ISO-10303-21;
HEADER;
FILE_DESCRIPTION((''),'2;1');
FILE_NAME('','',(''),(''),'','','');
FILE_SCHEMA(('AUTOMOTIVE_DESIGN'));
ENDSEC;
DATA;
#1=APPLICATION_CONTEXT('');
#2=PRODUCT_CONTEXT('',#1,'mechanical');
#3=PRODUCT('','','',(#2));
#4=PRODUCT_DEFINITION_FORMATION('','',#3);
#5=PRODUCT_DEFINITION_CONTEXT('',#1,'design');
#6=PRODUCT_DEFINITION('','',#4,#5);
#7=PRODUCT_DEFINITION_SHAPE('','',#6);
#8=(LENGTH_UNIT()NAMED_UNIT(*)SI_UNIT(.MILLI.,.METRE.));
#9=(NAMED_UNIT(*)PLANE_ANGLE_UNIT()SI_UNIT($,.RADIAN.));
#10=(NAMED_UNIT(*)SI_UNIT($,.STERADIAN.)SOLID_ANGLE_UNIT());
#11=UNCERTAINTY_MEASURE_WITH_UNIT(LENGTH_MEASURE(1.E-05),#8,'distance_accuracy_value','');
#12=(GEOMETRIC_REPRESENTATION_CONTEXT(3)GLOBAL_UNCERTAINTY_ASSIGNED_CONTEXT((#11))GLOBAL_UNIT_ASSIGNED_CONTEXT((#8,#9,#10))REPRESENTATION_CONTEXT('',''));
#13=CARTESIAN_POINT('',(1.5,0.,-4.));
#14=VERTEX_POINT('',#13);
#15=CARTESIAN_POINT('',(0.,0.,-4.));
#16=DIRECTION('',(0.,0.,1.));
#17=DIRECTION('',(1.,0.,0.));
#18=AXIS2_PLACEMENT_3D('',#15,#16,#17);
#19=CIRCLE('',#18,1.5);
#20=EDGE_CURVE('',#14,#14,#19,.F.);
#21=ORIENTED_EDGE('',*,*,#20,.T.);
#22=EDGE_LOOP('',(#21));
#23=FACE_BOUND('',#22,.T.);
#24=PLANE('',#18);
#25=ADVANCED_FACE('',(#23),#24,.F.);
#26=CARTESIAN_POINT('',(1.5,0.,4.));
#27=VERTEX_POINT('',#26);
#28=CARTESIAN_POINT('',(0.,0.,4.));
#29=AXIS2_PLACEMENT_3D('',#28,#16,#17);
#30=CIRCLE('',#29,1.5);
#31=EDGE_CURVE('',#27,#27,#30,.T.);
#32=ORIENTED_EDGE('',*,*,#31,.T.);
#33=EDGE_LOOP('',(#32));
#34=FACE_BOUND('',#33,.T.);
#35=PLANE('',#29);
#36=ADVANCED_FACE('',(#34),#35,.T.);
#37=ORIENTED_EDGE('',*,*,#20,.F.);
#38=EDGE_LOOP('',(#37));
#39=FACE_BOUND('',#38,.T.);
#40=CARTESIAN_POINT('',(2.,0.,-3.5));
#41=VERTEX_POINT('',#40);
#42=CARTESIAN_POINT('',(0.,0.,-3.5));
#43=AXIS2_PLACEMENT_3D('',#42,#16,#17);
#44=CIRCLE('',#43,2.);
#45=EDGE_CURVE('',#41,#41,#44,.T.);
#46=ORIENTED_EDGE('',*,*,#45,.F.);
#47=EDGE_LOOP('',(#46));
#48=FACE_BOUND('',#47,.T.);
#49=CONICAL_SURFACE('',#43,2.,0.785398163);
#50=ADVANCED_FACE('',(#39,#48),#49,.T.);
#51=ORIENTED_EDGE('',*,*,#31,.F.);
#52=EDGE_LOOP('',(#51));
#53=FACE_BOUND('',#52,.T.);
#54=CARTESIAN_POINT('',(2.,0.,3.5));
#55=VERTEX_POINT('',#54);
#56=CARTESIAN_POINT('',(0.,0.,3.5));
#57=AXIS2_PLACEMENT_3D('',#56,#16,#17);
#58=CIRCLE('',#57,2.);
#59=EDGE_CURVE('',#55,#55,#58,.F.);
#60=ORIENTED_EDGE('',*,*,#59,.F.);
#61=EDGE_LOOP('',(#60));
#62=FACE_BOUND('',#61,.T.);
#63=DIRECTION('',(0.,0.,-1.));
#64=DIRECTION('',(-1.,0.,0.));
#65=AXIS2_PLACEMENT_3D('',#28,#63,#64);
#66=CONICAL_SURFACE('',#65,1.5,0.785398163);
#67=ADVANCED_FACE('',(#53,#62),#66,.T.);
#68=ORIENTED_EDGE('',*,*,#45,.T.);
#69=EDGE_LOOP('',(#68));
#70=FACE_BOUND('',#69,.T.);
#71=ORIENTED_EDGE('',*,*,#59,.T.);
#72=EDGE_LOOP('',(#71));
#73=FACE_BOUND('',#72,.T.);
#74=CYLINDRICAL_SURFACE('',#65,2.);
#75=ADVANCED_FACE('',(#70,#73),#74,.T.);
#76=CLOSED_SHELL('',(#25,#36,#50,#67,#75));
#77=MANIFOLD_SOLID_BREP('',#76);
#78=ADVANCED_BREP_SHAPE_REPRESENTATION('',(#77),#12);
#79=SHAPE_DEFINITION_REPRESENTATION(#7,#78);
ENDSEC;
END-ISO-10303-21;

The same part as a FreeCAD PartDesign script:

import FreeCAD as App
import Part
import Sketcher
from FreeCAD import Vector
Q = App.Units.Quantity


def edges_at(feature, points):
    """Names of the edges that pass closest to the given points."""
    edges = feature.Shape.Edges
    near = lambda p: min(range(len(edges)), key=lambda i: edges[i].distToShape(Part.Vertex(*p))[0])
    return sorted({f"Edge{near(p) + 1}" for p in points})

doc = App.newDocument("Part")
body = doc.addObject("PartDesign::Body", "Body")

sketch1 = body.newObject("Sketcher::SketchObject", "Sketch")
sketch1.AttachmentSupport = (doc.getObject("XY_Plane"), [""])
sketch1.MapMode = "FlatFace"
sketch1.addGeometry(Part.Circle(Vector(0, 0, 0), Vector(0, 0, 1), 2), False)
sketch1.addConstraint([
    Sketcher.Constraint("Coincident", 0, 3, -1, 1),
    Sketcher.Constraint("Diameter", 0, Q("4 mm")),
])
pad1 = body.newObject("PartDesign::Pad", "Pad")
pad1.Profile = sketch1
pad1.Length = 8
pad1.Midplane = True
doc.recompute()

chamfer = body.newObject("PartDesign::Chamfer", "Chamfer")
chamfer.Base = (pad1, edges_at(pad1, [(-2, 0, -4), (-2, 0, 4)]))
chamfer.Size = 0.5

doc.recompute()
